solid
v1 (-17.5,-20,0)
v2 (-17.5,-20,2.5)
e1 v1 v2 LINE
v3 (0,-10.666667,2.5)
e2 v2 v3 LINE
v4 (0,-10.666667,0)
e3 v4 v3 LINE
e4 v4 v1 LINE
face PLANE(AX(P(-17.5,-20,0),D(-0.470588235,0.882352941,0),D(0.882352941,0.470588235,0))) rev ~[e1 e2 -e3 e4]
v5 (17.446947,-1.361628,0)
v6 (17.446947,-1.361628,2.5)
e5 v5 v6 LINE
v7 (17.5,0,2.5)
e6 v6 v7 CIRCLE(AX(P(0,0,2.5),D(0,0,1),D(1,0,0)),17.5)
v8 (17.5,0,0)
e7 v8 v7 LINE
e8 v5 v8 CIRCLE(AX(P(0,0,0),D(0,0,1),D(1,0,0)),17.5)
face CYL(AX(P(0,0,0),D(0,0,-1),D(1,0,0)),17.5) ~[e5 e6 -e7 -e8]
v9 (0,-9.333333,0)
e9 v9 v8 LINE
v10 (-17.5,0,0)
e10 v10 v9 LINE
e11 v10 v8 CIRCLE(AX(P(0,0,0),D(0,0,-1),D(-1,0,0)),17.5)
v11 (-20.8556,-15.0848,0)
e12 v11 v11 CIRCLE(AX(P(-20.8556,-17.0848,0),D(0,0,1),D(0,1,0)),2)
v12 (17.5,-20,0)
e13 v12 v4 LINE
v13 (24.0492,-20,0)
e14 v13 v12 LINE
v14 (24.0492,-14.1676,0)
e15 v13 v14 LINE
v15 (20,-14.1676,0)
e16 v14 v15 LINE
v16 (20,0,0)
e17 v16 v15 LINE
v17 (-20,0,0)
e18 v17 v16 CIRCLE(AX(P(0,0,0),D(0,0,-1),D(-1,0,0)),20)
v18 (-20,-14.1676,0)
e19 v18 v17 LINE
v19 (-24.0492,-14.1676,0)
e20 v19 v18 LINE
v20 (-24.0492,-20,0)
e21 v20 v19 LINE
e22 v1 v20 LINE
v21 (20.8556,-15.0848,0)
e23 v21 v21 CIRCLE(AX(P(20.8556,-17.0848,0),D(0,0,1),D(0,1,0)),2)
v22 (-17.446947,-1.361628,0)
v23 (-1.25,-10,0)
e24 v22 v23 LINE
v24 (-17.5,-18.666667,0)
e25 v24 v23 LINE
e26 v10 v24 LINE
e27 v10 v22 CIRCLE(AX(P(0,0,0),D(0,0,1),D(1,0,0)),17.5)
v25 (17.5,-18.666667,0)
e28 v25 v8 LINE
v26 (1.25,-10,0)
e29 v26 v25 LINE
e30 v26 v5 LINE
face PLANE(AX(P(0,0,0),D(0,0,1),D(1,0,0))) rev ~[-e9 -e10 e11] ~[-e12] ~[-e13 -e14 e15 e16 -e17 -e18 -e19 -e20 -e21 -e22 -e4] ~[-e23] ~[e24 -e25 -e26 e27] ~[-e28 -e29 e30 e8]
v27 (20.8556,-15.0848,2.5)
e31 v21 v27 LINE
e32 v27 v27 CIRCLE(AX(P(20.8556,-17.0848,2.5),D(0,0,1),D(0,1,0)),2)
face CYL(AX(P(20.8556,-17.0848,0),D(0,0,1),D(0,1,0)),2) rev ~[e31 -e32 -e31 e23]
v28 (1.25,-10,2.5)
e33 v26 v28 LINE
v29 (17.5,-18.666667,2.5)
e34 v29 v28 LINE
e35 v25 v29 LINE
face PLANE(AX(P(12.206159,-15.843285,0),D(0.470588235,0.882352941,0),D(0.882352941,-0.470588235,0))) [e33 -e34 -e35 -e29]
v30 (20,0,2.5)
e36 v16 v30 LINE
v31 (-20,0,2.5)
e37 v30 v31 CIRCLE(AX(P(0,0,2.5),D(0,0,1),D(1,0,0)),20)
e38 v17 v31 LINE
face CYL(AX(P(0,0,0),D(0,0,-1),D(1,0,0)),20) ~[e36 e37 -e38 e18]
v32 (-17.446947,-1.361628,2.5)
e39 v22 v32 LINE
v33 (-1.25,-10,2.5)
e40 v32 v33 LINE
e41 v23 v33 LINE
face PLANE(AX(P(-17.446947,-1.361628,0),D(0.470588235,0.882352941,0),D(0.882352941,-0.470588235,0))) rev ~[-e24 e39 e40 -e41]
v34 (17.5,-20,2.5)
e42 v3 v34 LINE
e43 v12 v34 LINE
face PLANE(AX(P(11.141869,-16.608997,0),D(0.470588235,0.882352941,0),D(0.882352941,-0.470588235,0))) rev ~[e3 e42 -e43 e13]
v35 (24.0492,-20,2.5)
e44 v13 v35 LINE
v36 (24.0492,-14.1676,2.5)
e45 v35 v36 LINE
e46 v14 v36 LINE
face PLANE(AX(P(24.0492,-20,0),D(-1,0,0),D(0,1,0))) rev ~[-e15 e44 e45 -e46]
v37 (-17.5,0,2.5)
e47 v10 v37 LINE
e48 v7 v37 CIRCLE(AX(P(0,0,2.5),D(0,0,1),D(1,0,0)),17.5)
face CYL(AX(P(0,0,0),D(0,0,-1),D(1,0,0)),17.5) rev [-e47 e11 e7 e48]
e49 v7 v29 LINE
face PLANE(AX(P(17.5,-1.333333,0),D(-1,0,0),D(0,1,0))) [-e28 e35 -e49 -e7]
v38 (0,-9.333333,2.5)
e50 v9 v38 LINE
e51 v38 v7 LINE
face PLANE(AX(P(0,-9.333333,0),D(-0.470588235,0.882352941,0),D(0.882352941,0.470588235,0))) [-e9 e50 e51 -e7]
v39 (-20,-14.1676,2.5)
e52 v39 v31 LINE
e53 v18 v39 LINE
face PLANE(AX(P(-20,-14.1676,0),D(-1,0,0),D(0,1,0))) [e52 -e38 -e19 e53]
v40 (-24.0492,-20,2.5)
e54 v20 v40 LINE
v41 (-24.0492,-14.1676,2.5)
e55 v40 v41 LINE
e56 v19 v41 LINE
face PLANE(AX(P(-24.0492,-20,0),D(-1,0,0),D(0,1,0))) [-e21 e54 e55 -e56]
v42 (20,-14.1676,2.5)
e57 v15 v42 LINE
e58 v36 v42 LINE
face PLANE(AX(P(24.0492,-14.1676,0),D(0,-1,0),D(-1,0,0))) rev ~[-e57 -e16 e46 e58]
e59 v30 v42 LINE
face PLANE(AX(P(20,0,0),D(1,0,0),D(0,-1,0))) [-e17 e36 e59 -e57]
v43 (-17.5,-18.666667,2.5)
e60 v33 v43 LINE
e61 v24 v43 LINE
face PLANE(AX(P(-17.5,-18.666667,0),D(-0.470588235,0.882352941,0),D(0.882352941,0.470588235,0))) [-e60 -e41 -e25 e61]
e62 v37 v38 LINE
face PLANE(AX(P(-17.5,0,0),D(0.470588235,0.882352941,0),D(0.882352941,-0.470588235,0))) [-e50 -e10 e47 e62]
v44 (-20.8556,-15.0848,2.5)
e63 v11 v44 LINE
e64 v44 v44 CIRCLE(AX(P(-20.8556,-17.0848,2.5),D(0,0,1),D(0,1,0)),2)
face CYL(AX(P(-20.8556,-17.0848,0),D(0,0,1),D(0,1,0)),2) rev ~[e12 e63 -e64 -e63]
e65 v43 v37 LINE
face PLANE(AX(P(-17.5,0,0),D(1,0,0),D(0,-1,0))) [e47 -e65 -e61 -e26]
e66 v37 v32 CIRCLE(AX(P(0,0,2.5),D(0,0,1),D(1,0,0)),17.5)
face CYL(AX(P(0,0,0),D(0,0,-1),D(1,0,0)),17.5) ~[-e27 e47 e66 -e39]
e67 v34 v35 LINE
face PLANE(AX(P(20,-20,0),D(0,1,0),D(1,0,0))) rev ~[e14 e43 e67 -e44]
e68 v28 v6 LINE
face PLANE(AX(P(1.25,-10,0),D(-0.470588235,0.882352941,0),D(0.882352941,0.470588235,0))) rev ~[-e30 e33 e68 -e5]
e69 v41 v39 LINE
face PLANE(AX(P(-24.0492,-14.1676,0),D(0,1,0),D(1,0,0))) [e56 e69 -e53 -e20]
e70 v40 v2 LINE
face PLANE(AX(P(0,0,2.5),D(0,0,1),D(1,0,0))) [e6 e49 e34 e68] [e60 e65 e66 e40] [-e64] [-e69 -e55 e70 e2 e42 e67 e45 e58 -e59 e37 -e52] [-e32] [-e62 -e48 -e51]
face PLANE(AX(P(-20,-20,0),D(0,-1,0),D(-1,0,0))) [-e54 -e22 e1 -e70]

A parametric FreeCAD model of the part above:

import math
import FreeCAD as App
import Part
import Sketcher

doc = App.newDocument("Part")
params = doc.addObject("Spreadsheet::Sheet", "Params")
for row, (alias, value) in enumerate([
    ("sketch1_radius", "20 mm"),
    ("sketch1_radius2", "17.5 mm"),
    ("pad1_length", "2.5 mm"),
    ("sketch2_diameter", "4 mm"),
    ("hole_diameter", "4 mm"),
], start=1):
    params.set(f"A{row}", alias)
    params.set(f"B{row}", "=" + value)
    params.setAlias(f"B{row}", alias)

body = doc.addObject("PartDesign::Body", "Body")

# Sketch on XY plane
sketch1 = body.newObject("Sketcher::SketchObject", "Sketch")
sketch1.AttachmentSupport = (doc.getObject("XY_Plane"), [""])
sketch1.MapMode = "FlatFace"
sketch1.addGeometry([
    Part.ArcOfCircle(Part.Circle(App.Vector(0, 0, 0), App.Vector(0, 0, 1), 20), math.radians(0), math.radians(180)),  # 0
    Part.LineSegment(App.Vector(-20, 0, 0), App.Vector(-20, -14.2, 0)),  # 1
    Part.LineSegment(App.Vector(-20, -14.2, 0), App.Vector(-24, -14.2, 0)),  # 2
    Part.LineSegment(App.Vector(-24, -14.2, 0), App.Vector(-24, -20, 0)),  # 3
    Part.LineSegment(App.Vector(-24, -20, 0), App.Vector(-17.5, -20, 0)),  # 4
    Part.LineSegment(App.Vector(-17.5, -20, 0), App.Vector(0, -10.7, 0)),  # 5
    Part.LineSegment(App.Vector(0, -10.7, 0), App.Vector(17.5, -20, 0)),  # 6
    Part.LineSegment(App.Vector(17.5, -20, 0), App.Vector(24, -20, 0)),  # 7
    Part.LineSegment(App.Vector(24, -20, 0), App.Vector(24, -14.2, 0)),  # 8
    Part.LineSegment(App.Vector(24, -14.2, 0), App.Vector(20, -14.2, 0)),  # 9
    Part.LineSegment(App.Vector(20, -14.2, 0), App.Vector(20, 0, 0)),  # 10
    Part.LineSegment(App.Vector(17.5, 0, 0), App.Vector(17.5, -18.7, 0)),  # 11
    Part.LineSegment(App.Vector(17.5, -18.7, 0), App.Vector(1.2, -10, 0)),  # 12
    Part.LineSegment(App.Vector(1.2, -10, 0), App.Vector(17.4, -1.4, 0)),  # 13
    Part.ArcOfCircle(Part.Circle(App.Vector(0, 0, 0), App.Vector(0, 0, 1), 17.5), math.radians(-4.46), math.radians(0)),  # 14
    Part.LineSegment(App.Vector(17.5, 0, 0), App.Vector(0, -9.3, 0)),  # 15
    Part.LineSegment(App.Vector(0, -9.3, 0), App.Vector(-17.5, 0, 0)),  # 16
    Part.ArcOfCircle(Part.Circle(App.Vector(0, 0, 0), App.Vector(0, 0, 1), 17.5), math.radians(0), math.radians(180)),  # 17
    Part.ArcOfCircle(Part.Circle(App.Vector(0, 0, 0), App.Vector(0, 0, 1), 17.5), math.radians(180), math.radians(184.46)),  # 18
    Part.LineSegment(App.Vector(-17.4, -1.4, 0), App.Vector(-1.2, -10, 0)),  # 19
    Part.LineSegment(App.Vector(-1.2, -10, 0), App.Vector(-17.5, -18.7, 0)),  # 20
    Part.LineSegment(App.Vector(-17.5, -18.7, 0), App.Vector(-17.5, 0, 0)),  # 21
], False)
sketch1.addConstraint([
    Sketcher.Constraint("Tangent", 0, 2, 1, 1),
    Sketcher.Constraint("Coincident", 1, 2, 2, 1),
    Sketcher.Constraint("Coincident", 2, 2, 3, 1),
    Sketcher.Constraint("Coincident", 3, 2, 4, 1),
    Sketcher.Constraint("Coincident", 4, 2, 5, 1),
    Sketcher.Constraint("Coincident", 5, 2, 6, 1),
    Sketcher.Constraint("Coincident", 6, 2, 7, 1),
    Sketcher.Constraint("Coincident", 7, 2, 8, 1),
    Sketcher.Constraint("Coincident", 8, 2, 9, 1),
    Sketcher.Constraint("Coincident", 9, 2, 10, 1),
    Sketcher.Constraint("Tangent", 10, 2, 0, 1),
    Sketcher.Constraint("Coincident", 11, 2, 12, 1),
    Sketcher.Constraint("Coincident", 12, 2, 13, 1),
    Sketcher.Constraint("Coincident", 13, 2, 14, 1),
    Sketcher.Constraint("Tangent", 14, 2, 11, 1),
    Sketcher.Constraint("Coincident", 15, 2, 16, 1),
    Sketcher.Constraint("Coincident", 16, 2, 17, 2),
    Sketcher.Constraint("Coincident", 17, 1, 15, 1),
    Sketcher.Constraint("Coincident", 18, 2, 19, 1),
    Sketcher.Constraint("Coincident", 19, 2, 20, 1),
    Sketcher.Constraint("Coincident", 20, 2, 21, 1),
    Sketcher.Constraint("Tangent", 21, 2, 18, 1),
    Sketcher.Constraint("Vertical", 1),
    Sketcher.Constraint("Horizontal", 2),
    Sketcher.Constraint("Vertical", 3),
    Sketcher.Constraint("Horizontal", 4),
    Sketcher.Constraint("Horizontal", 7),
    Sketcher.Constraint("Vertical", 8),
    Sketcher.Constraint("Horizontal", 9),
    Sketcher.Constraint("Vertical", 10),
    Sketcher.Constraint("Vertical", 11),
    Sketcher.Constraint("Vertical", 21),
    Sketcher.Constraint("Coincident", 0, 3, -1, 1),
    Sketcher.Constraint("Coincident", 14, 3, -1, 1),
    Sketcher.Constraint("Coincident", 17, 3, -1, 1),
    Sketcher.Constraint("Coincident", 18, 3, -1, 1),
    Sketcher.Constraint("Coincident", 17, 1, 14, 2),
    Sketcher.Constraint("Coincident", 21, 2, 16, 2),
    Sketcher.Constraint("Symmetric", 4, 2, 6, 2, -2),
    Sketcher.Constraint("Symmetric", 2, 2, 8, 2, -2),
    Sketcher.Constraint("Symmetric", 12, 2, 19, 2, -2),
    Sketcher.Constraint("PointOnObject", 5, 2, -2),
    Sketcher.Constraint("PointOnObject", 15, 2, -2),
    Sketcher.Constraint("Parallel", 6, 12),
    Sketcher.Constraint("Parallel", 5, 13),
    Sketcher.Constraint("Parallel", 13, 15),
    Sketcher.Constraint("Parallel", 16, 19),
    Sketcher.Constraint("Parallel", 15, 20),
    Sketcher.Constraint("Vertical", 6, 2, 11, 2),
    Sketcher.Constraint("Radius", 0, 20.0),
    Sketcher.Constraint("Radius", 14, 17.5),
    Sketcher.Constraint("DistanceY", 3, 2, -1, 1, 20.0),
    Sketcher.Constraint("DistanceX", 19, 2, 12, 2, 2.5),
    Sketcher.Constraint("DistanceY", 12, 2, -1, 1, 10.0),
    Sketcher.Constraint("DistanceX", 2, 2, 2, 1, 4.0492),
    Sketcher.Constraint("DistanceY", 1, 2, 1, 1, 14.1676),
    Sketcher.Constraint("DistanceY", 11, 2, 11, 1, 18.6667),
])
sketch1.setExpression("Constraints[49]", "Params.sketch1_radius")
sketch1.setExpression("Constraints[50]", "Params.sketch1_radius2")
pad1 = body.newObject("PartDesign::Pad", "Pad")
pad1.Profile = sketch1
pad1.setExpression("Length", "Params.pad1_length")

# Sketch on XY plane
sketch2 = body.newObject("Sketcher::SketchObject", "Sketch001")
sketch2.AttachmentSupport = (doc.getObject("XY_Plane"), [""])
sketch2.MapMode = "FlatFace"
sketch2.addGeometry([
    Part.Circle(App.Vector(20.9, -17.1, 0), App.Vector(0, 0, 1), 2),
    Part.Circle(App.Vector(-20.9, -17.1, 0), App.Vector(0, 0, 1), 2),
], False)
sketch2.addConstraint([
    Sketcher.Constraint("Equal", 0, 1),
    Sketcher.Constraint("Symmetric", 0, 3, 1, 3, -2),
    Sketcher.Constraint("Diameter", 0, 4.0),
    Sketcher.Constraint("DistanceX", -1, 1, 0, 3, 20.8556),
    Sketcher.Constraint("DistanceY", 0, 3, -1, 1, 17.0848),
])
sketch2.setExpression("Constraints[2]", "Params.sketch2_diameter")
doc.recompute()
hole = body.newObject("PartDesign::Hole", "Hole")
hole.Profile = sketch2
hole.ThreadType = "None"
hole.setExpression("Diameter", "Params.hole_diameter")
hole.DepthType = "ThroughAll"
hole.Reversed = True

doc.recompute()
